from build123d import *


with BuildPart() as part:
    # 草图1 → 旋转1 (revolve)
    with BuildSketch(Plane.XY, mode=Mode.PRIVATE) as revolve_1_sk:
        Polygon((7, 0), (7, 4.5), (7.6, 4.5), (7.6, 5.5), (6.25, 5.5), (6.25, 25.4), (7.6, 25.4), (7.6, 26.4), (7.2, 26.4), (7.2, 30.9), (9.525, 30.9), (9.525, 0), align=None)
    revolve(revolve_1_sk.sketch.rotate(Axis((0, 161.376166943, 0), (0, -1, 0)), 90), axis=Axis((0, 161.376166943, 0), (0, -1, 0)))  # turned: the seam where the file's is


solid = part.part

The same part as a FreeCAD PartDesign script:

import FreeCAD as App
import Part
import Sketcher
from FreeCAD import Vector
Q = App.Units.Quantity

doc = App.newDocument("Part")
params = doc.addObject("Spreadsheet::Sheet", "Params")
for row, (alias, value) in enumerate([
    ("sketch1_height", "1 mm"),
    ("sketch1_width", "0.4 mm"),
    ("sketch1_width2", "0.6 mm"),
    ("sketch1_height2", "4.5 mm"),
    ("sketch1_height3", "30.9 mm"),
    ("revolution_angle", "360 deg"),
], start=1):
    params.set(f"A{row}", alias)
    params.set(f"B{row}", "=" + value)
    params.setAlias(f"B{row}", alias)

body = doc.addObject("PartDesign::Body", "Body")

sketch1 = body.newObject("Sketcher::SketchObject", "Sketch")
sketch1.AttachmentSupport = (doc.getObject("XY_Plane"), [""])
sketch1.MapMode = "FlatFace"
sketch1.addGeometry(Part.LineSegment(Vector(7, 4.5, 0), Vector(7, 0, 0)), False)
sketch1.addGeometry(Part.LineSegment(Vector(7, 0, 0), Vector(9.53, 0, 0)), False)
sketch1.addGeometry(Part.LineSegment(Vector(9.53, 0, 0), Vector(9.53, 30.9, 0)), False)
sketch1.addGeometry(Part.LineSegment(Vector(9.53, 30.9, 0), Vector(7.2, 30.9, 0)), False)
sketch1.addGeometry(Part.LineSegment(Vector(7.2, 30.9, 0), Vector(7.2, 26.4, 0)), False)
sketch1.addGeometry(Part.LineSegment(Vector(7.2, 26.4, 0), Vector(7.6, 26.4, 0)), False)
sketch1.addGeometry(Part.LineSegment(Vector(7.6, 26.4, 0), Vector(7.6, 25.4, 0)), False)
sketch1.addGeometry(Part.LineSegment(Vector(7.6, 25.4, 0), Vector(6.25, 25.4, 0)), False)
sketch1.addGeometry(Part.LineSegment(Vector(6.25, 25.4, 0), Vector(6.25, 5.5, 0)), False)
sketch1.addGeometry(Part.LineSegment(Vector(6.25, 5.5, 0), Vector(7.6, 5.5, 0)), False)
sketch1.addGeometry(Part.LineSegment(Vector(7.6, 5.5, 0), Vector(7.6, 4.5, 0)), False)
sketch1.addGeometry(Part.LineSegment(Vector(7.6, 4.5, 0), Vector(7, 4.5, 0)), False)
sketch1.addConstraint(Sketcher.Constraint("Coincident", 0, 2, 1, 1))
sketch1.addConstraint(Sketcher.Constraint("Coincident", 1, 2, 2, 1))
sketch1.addConstraint(Sketcher.Constraint("Coincident", 2, 2, 3, 1))
sketch1.addConstraint(Sketcher.Constraint("Coincident", 3, 2, 4, 1))
sketch1.addConstraint(Sketcher.Constraint("Coincident", 4, 2, 5, 1))
sketch1.addConstraint(Sketcher.Constraint("Coincident", 5, 2, 6, 1))
sketch1.addConstraint(Sketcher.Constraint("Coincident", 6, 2, 7, 1))
sketch1.addConstraint(Sketcher.Constraint("Coincident", 7, 2, 8, 1))
sketch1.addConstraint(Sketcher.Constraint("Coincident", 8, 2, 9, 1))
sketch1.addConstraint(Sketcher.Constraint("Coincident", 9, 2, 10, 1))
sketch1.addConstraint(Sketcher.Constraint("Coincident", 10, 2, 11, 1))
sketch1.addConstraint(Sketcher.Constraint("Coincident", 11, 2, 0, 1))
sketch1.addConstraint(Sketcher.Constraint("Vertical", 0))
sketch1.addConstraint(Sketcher.Constraint("Horizontal", 1))
sketch1.addConstraint(Sketcher.Constraint("Vertical", 2))
sketch1.addConstraint(Sketcher.Constraint("Horizontal", 3))
sketch1.addConstraint(Sketcher.Constraint("Vertical", 4))
sketch1.addConstraint(Sketcher.Constraint("Horizontal", 5))
sketch1.addConstraint(Sketcher.Constraint("Vertical", 6))
sketch1.addConstraint(Sketcher.Constraint("Horizontal", 7))
sketch1.addConstraint(Sketcher.Constraint("Vertical", 8))
sketch1.addConstraint(Sketcher.Constraint("Horizontal", 9))
sketch1.addConstraint(Sketcher.Constraint("Vertical", 10))
sketch1.addConstraint(Sketcher.Constraint("Horizontal", 11))
sketch1.addConstraint(Sketcher.Constraint("PointOnObject", 0, 2, -1))
sketch1.addConstraint(Sketcher.Constraint("Vertical", 6, 2, 9, 2))
sketch1.addConstraint(Sketcher.Constraint("Equal", 0, 4))
sketch1.addConstraint(Sketcher.Constraint("Equal", 6, 10))
sketch1.addConstraint(Sketcher.Constraint("DistanceY", 6, 2, 6, 1, Q("1 mm")))
sketch1.addConstraint(Sketcher.Constraint("DistanceX", 5, 1, 5, 2, Q("0.4 mm")))
sketch1.addConstraint(Sketcher.Constraint("DistanceX", 11, 2, 11, 1, Q("0.6 mm")))
sketch1.addConstraint(Sketcher.Constraint("DistanceY", 0, 2, 0, 1, Q("4.5 mm")))
sketch1.addConstraint(Sketcher.Constraint("DistanceY", 2, 1, 2, 2, Q("30.9 mm")))
sketch1.addConstraint(Sketcher.Constraint("DistanceX", -1, 1, 0, 2, Q("7 mm")))
sketch1.addConstraint(Sketcher.Constraint("DistanceX", 7, 2, 7, 1, Q("1.35 mm")))
sketch1.addConstraint(Sketcher.Constraint("DistanceX", 1, 1, 1, 2, Q("2.525 mm")))
sketch1.setExpression("Constraints[28]", "Params.sketch1_height")
sketch1.setExpression("Constraints[29]", "Params.sketch1_width")
sketch1.setExpression("Constraints[30]", "Params.sketch1_width2")
sketch1.setExpression("Constraints[31]", "Params.sketch1_height2")
sketch1.setExpression("Constraints[32]", "Params.sketch1_height3")
revolution = body.newObject("PartDesign::Revolution", "Revolution")
revolution.Profile = sketch1
revolution.ReferenceAxis = (sketch1, ["V_Axis"])
revolution.setExpression("Angle", "Params.revolution_angle")

doc.recompute()
